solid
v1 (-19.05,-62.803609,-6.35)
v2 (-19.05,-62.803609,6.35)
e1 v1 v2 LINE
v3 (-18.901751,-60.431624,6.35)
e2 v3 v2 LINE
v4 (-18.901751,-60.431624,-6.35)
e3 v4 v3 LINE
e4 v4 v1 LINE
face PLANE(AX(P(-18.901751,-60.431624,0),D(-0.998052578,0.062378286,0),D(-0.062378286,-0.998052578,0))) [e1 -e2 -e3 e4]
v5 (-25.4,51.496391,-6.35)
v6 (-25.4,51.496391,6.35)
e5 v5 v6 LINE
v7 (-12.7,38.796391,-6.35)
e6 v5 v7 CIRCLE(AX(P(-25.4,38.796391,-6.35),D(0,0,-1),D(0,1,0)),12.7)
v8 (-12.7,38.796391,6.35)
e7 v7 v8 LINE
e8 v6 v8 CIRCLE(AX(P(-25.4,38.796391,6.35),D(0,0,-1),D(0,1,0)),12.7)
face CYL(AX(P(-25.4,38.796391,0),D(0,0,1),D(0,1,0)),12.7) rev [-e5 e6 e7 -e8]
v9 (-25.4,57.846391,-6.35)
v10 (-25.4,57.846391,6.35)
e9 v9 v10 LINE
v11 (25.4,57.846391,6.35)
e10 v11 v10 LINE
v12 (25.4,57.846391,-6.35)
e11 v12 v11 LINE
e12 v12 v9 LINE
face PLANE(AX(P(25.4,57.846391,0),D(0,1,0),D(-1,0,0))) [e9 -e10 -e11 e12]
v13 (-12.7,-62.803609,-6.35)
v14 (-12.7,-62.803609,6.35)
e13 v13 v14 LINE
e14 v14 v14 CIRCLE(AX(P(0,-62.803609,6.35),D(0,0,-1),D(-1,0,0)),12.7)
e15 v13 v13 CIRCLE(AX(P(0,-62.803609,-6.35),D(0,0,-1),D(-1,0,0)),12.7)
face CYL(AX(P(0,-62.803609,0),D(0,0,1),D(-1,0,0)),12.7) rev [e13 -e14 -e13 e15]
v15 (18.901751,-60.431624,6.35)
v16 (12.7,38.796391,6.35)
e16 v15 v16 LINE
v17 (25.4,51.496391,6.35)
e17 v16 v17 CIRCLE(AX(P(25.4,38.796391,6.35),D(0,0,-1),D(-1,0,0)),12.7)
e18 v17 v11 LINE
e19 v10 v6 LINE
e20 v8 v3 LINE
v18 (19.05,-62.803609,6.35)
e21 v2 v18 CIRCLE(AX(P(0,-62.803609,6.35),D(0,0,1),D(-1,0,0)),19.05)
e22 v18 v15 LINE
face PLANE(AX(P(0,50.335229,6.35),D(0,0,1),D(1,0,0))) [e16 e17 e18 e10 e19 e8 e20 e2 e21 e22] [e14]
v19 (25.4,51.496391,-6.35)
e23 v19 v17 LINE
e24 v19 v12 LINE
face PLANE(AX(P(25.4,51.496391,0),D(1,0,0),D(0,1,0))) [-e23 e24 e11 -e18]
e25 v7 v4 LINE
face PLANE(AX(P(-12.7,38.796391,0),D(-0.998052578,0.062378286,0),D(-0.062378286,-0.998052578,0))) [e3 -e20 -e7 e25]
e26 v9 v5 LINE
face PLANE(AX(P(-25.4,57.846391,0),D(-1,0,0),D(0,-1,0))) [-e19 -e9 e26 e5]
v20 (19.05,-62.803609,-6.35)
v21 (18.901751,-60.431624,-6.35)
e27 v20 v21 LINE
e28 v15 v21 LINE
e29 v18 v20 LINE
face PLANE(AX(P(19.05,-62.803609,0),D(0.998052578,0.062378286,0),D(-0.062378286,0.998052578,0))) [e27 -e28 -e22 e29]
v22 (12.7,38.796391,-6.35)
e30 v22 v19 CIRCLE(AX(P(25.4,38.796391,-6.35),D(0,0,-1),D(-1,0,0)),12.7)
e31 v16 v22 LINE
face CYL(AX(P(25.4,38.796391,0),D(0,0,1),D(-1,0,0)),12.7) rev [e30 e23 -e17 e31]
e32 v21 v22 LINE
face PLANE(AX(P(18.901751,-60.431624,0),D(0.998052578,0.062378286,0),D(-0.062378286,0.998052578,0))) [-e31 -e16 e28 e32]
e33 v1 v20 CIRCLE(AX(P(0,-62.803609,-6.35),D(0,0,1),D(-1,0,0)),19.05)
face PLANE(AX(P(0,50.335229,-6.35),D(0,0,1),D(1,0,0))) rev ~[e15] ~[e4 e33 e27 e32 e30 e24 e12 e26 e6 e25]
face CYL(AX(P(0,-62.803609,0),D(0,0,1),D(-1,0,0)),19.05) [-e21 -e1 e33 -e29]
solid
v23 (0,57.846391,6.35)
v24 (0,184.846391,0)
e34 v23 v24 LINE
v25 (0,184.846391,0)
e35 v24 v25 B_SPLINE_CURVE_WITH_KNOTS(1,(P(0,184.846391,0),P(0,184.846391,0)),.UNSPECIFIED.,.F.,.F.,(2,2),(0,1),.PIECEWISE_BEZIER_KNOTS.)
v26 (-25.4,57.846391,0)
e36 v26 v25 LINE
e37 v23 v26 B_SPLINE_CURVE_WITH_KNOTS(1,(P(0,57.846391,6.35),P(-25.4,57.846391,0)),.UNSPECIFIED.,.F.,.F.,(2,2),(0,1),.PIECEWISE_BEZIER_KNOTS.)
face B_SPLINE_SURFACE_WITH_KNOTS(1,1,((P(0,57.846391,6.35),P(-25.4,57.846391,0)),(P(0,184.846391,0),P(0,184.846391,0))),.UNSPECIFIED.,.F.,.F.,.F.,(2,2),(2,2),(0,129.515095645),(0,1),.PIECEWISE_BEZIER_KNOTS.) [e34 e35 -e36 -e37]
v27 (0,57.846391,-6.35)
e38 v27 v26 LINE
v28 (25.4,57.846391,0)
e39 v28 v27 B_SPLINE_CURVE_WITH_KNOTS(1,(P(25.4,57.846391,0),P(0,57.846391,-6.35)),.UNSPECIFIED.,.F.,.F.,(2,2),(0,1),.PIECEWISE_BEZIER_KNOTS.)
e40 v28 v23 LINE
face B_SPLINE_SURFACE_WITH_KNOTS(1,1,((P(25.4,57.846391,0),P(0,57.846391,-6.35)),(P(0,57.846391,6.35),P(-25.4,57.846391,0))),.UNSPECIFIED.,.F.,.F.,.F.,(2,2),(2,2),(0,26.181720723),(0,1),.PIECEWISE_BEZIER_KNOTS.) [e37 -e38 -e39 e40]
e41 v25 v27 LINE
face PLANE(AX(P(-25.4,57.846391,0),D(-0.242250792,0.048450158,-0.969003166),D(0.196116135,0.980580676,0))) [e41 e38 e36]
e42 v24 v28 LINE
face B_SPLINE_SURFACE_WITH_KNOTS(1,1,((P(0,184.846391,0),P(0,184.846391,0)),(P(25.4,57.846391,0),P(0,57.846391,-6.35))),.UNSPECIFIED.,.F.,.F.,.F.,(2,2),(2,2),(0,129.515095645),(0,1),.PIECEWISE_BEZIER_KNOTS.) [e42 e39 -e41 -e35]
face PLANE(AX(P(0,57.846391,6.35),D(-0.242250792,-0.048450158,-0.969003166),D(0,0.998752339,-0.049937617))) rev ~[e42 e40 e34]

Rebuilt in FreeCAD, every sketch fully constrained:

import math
import FreeCAD as App
import Part
import Sketcher
from FreeCAD import Vector
Q = App.Units.Quantity


def add_polygon(sketch, points):
    """Adds a closed chain of lines whose ends are joined by coincident constraints."""
    first, n = sketch.GeometryCount, len(points)
    for a, b in zip(points, points[1:] + points[:1]):
        sketch.addGeometry(Part.LineSegment(App.Vector(*a, 0), App.Vector(*b, 0)), False)
    for i in range(n):
        sketch.addConstraint(Sketcher.Constraint("Coincident", first + i, 2, first + (i + 1) % n, 1))

doc = App.newDocument("Part")
body = doc.addObject("PartDesign::Body", "Body")

sketch1 = body.newObject("Sketcher::SketchObject", "Sketch")
sketch1.AttachmentSupport = (doc.getObject("XY_Plane"), [""])
sketch1.MapMode = "FlatFace"
sketch1.addGeometry([
    Part.ArcOfCircle(Part.Circle(Vector(25.4, 38.8, 0), Vector(0, 0, 1), 12.7), math.radians(90), math.radians(180)),
    Part.LineSegment(Vector(25.4, 51.5, 0), Vector(25.4, 57.8, 0)),
    Part.LineSegment(Vector(25.4, 57.8, 0), Vector(-25.4, 57.8, 0)),
    Part.LineSegment(Vector(-25.4, 57.8, 0), Vector(-25.4, 51.5, 0)),
    Part.ArcOfCircle(Part.Circle(Vector(-25.4, 38.8, 0), Vector(0, 0, 1), 12.7), math.radians(0), math.radians(90)),
    Part.LineSegment(Vector(-12.7, 38.8, 0), Vector(-18.9, -60.4, 0)),
    Part.LineSegment(Vector(-18.9, -60.4, 0), Vector(-19.1, -62.8, 0)),
    Part.ArcOfCircle(Part.Circle(Vector(0, -62.8, 0), Vector(0, 0, 1), 19.1), math.radians(180), math.radians(360)),
    Part.LineSegment(Vector(19.1, -62.8, 0), Vector(18.9, -60.4, 0)),
    Part.LineSegment(Vector(18.9, -60.4, 0), Vector(12.7, 38.8, 0)),
    Part.Circle(Vector(0, -62.8, 0), Vector(0, 0, 1), 12.7),
], False)
sketch1.addConstraint([
    Sketcher.Constraint("Coincident", 0, 1, 1, 1),
    Sketcher.Constraint("Coincident", 1, 2, 2, 1),
    Sketcher.Constraint("Coincident", 2, 2, 3, 1),
    Sketcher.Constraint("Coincident", 3, 2, 4, 2),
    Sketcher.Constraint("Coincident", 4, 1, 5, 1),
    Sketcher.Constraint("Coincident", 5, 2, 6, 1),
    Sketcher.Constraint("Coincident", 6, 2, 7, 1),
    Sketcher.Constraint("Coincident", 7, 2, 8, 1),
    Sketcher.Constraint("Coincident", 8, 2, 9, 1),
    Sketcher.Constraint("Coincident", 9, 2, 0, 2),
    Sketcher.Constraint("Vertical", 1),
    Sketcher.Constraint("Horizontal", 2),
    Sketcher.Constraint("Vertical", 3),
    Sketcher.Constraint("Coincident", 10, 3, 7, 3),
    Sketcher.Constraint("Equal", 0, 4),
    Sketcher.Constraint("Equal", 4, 10),
    Sketcher.Constraint("Symmetric", 0, 3, 4, 3, -2),
    Sketcher.Constraint("Symmetric", 6, 2, 7, 2, -2),
    Sketcher.Constraint("Symmetric", 5, 2, 8, 2, -2),
    Sketcher.Constraint("Parallel", 5, 6),
    Sketcher.Constraint("Horizontal", 0, 3, 4, 1),
    Sketcher.Constraint("Horizontal", 10, 3, 6, 2),
    Sketcher.Constraint("Horizontal", 4, 1, 9, 2),
    Sketcher.Constraint("Vertical", 4, 3, 2, 2),
    Sketcher.Constraint("Diameter", 10, Q("1 in")),
    Sketcher.Constraint("DistanceX", 2, 2, 2, 1, Q("2 in")),
    Sketcher.Constraint("Radius", 7, Q("0.75 in")),
    Sketcher.Constraint("DistanceX", -1, 1, 0, 3, Q("1 in")),
    Sketcher.Constraint("DistanceY", 7, 3, 0, 3, Q("4 in")),
    Sketcher.Constraint("DistanceY", 1, 1, 1, 2, Q("0.25 in")),
    Sketcher.Constraint("DistanceX", 5, 2, 8, 2, 37.803502),
    Sketcher.Constraint("DistanceY", -1, 1, 0, 3, 38.796391),
])
pad1 = body.newObject("PartDesign::Pad", "Pad")
pad1.Profile = sketch1
pad1.Length = Q("0.5 in")
pad1.Midplane = True
body2 = doc.addObject("PartDesign::Body", "Body001")

sketch2 = body2.newObject("Sketcher::SketchObject", "Sketch001")
sketch2.Placement = App.Placement(Vector(2.169559, 0.433912, 8.678234), App.Rotation(Vector(0.970213664, -0.012097427, -0.241948545), Vector(0, -0.998752339, 0.049937617), Vector(-0.242250792, -0.048450158, -0.969003166), "ZXY"))
add_polygon(sketch2, [(-2.236166, -57.457115), (-2.236166, -184.615766), (23.943635, -57.774219)])
sketch2.addConstraint([
    Sketcher.Constraint("Vertical", 0),
    Sketcher.Constraint("DistanceY", 0, 2, 0, 1, 127.158651),
    Sketcher.Constraint("DistanceX", 0, 2, 1, 2, 26.1798),
    Sketcher.Constraint("Distance", 2, 26.181721),
    Sketcher.Constraint("DistanceY", 1, 2, -1, 1, 57.774219),
    Sketcher.Constraint("DistanceX", 0, 2, -1, 1, 2.236166),
])

sketch3 = body2.newObject("Sketcher::SketchObject", "Sketch002")
sketch3.Placement = App.Placement(Vector(-2.169559, 0.433912, -8.678234), App.Rotation(Vector(0.970213664, 0.012097427, -0.241948545), Vector(0, -0.998752339, -0.049937617), Vector(-0.242250792, 0.048450158, -0.969003166), "ZXY"))
add_polygon(sketch3, [(2.236166, -184.615766), (2.236166, -57.457115), (-23.943635, -57.774219)])
sketch3.addConstraint([
    Sketcher.Constraint("Vertical", 0),
    Sketcher.Constraint("DistanceY", 0, 1, 0, 2, 127.158651),
    Sketcher.Constraint("DistanceX", 1, 2, 0, 2, 26.1798),
    Sketcher.Constraint("Distance", 1, 26.181721),
    Sketcher.Constraint("DistanceY", 1, 2, -1, 1, 57.774219),
    Sketcher.Constraint("DistanceX", -1, 1, 0, 2, 2.236166),
])

additiveloft = body2.newObject("PartDesign::AdditiveLoft", "AdditiveLoft")
additiveloft.Profile = sketch2
additiveloft.Sections = [sketch3]

doc.recompute()
